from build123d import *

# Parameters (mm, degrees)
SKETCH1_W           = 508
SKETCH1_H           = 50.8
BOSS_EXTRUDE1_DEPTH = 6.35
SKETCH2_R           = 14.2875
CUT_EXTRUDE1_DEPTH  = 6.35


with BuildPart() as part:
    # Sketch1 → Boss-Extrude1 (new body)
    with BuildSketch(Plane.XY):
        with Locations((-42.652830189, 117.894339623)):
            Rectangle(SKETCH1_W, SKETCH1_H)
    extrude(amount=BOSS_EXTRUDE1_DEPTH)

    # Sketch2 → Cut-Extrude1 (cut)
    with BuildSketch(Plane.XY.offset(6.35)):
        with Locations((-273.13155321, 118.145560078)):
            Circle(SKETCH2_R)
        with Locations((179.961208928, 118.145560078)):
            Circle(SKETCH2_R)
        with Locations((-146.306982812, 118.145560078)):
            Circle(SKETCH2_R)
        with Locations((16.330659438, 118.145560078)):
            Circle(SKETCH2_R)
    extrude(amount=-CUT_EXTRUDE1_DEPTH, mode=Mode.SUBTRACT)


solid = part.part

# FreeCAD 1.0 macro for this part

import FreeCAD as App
import Part
import Sketcher

V = App.Vector
Q = App.Units.Quantity


def add_polygon(sketch, points):
    """Adds a closed chain of lines whose ends are joined by coincident constraints."""
    first, n = sketch.GeometryCount, len(points)
    for a, b in zip(points, points[1:] + points[:1]):
        sketch.addGeometry(Part.LineSegment(App.Vector(*a, 0), App.Vector(*b, 0)), False)
    for i in range(n):
        sketch.addConstraint(Sketcher.Constraint("Coincident", first + i, 2, first + (i + 1) % n, 1))

doc = App.newDocument("Part")
body = doc.addObject("PartDesign::Body", "Body")

sketch1 = body.newObject("Sketcher::SketchObject", "Sketch")
sketch1.AttachmentSupport = (doc.getObject("XY_Plane"), [""])
sketch1.MapMode = "FlatFace"
add_polygon(sketch1, [(-297, 143), (-297, 92), (211, 92), (211, 143)])
sketch1.addConstraint([
    Sketcher.Constraint("Vertical", 0),
    Sketcher.Constraint("Horizontal", 1),
    Sketcher.Constraint("Vertical", 2),
    Sketcher.Constraint("Horizontal", 3),
    Sketcher.Constraint("DistanceX", 1, 1, 1, 2, Q("20 in")),
    Sketcher.Constraint("DistanceY", 0, 2, 0, 1, Q("2 in")),
    Sketcher.Constraint("DistanceX", 0, 2, -1, 1, 296.65283),
    Sketcher.Constraint("DistanceY", -1, 1, 0, 2, 92.49434),
])
pad1 = body.newObject("PartDesign::Pad", "Pad")
pad1.Profile = sketch1
pad1.Length = Q("0.25 in")

sketch2 = body.newObject("Sketcher::SketchObject", "Sketch001")
sketch2.AttachmentSupport = (doc.getObject("XY_Plane"), [""])
sketch2.MapMode = "FlatFace"
sketch2.AttachmentOffset = App.Placement(V(0, 0, 0.25 * 25.4), App.Rotation())
sketch2.addGeometry([
    Part.Circle(V(-273, 118, 0), V(0, 0, 1), 14),
    Part.Circle(V(180, 118, 0), V(0, 0, 1), 14),
    Part.Circle(V(-146, 118, 0), V(0, 0, 1), 14),
    Part.Circle(V(16, 118, 0), V(0, 0, 1), 14),
], False)
sketch2.addConstraint([
    Sketcher.Constraint("Equal", 0, 1),
    Sketcher.Constraint("Equal", 1, 2),
    Sketcher.Constraint("Equal", 2, 3),
    Sketcher.Constraint("Horizontal", 0, 3, 1, 3),
    Sketcher.Constraint("Horizontal", 1, 3, 2, 3),
    Sketcher.Constraint("Horizontal", 2, 3, 3, 3),
    Sketcher.Constraint("Diameter", 0, Q("1.125 in")),
    Sketcher.Constraint("DistanceY", -1, 1, 0, 3, Q("4.6514 in")),
    Sketcher.Constraint("DistanceX", -1, 1, 1, 3, 179.961209),
    Sketcher.Constraint("DistanceX", -1, 1, 3, 3, 16.330659),
    Sketcher.Constraint("DistanceX", 0, 3, 2, 3, 126.82457),
    Sketcher.Constraint("DistanceX", 2, 3, 1, 3, 326.268192),
])
pocket1 = body.newObject("PartDesign::Pocket", "Pocket")
pocket1.Profile = sketch2
pocket1.Length = Q("0.25 in")

doc.recompute()
